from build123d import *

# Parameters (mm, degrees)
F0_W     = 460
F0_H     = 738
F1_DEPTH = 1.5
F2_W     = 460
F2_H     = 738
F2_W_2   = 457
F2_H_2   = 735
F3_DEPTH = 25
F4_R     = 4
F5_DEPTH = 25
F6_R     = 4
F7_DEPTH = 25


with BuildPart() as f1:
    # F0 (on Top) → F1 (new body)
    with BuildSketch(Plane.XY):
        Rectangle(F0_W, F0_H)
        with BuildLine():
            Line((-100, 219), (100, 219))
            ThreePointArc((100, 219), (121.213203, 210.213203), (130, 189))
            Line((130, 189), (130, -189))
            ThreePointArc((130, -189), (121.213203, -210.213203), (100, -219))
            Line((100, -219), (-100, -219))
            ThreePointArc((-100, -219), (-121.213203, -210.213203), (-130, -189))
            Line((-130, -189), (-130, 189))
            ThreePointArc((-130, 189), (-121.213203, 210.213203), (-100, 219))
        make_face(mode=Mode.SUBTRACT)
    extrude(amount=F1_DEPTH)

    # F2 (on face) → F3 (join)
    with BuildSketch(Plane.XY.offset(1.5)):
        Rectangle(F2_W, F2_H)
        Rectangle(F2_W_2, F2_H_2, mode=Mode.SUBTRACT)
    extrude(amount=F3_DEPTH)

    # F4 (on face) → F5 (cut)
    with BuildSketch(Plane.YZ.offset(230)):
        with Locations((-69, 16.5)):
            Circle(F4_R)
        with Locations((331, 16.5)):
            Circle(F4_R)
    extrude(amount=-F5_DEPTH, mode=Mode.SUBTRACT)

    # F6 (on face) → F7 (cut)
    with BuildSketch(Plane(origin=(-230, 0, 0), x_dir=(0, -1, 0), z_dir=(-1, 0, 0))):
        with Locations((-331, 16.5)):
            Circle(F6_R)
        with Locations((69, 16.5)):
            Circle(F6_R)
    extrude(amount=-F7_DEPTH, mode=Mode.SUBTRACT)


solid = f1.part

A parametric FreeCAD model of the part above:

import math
import FreeCAD as App
import Part
import Sketcher
from FreeCAD import Vector

doc = App.newDocument("Part")
params = doc.addObject("Spreadsheet::Sheet", "Params")
for row, (alias, value) in enumerate([
    ("sketch1_radius", "30.000001 mm"),
    ("sketch1_width", "460 mm"),
    ("sketch1_width2", "200 mm"),
    ("sketch1_height", "738 mm"),
    ("sketch1_height2", "378 mm"),
    ("pad1_length", "1.5 mm"),
    ("sketch2_width", "460 mm"),
    ("sketch2_width2", "457 mm"),
    ("sketch2_height", "738 mm"),
    ("sketch2_height2", "735 mm"),
    ("pad2_length", "25 mm"),
    ("sketch3_diameter", "8 mm"),
    ("pocket1_length", "25 mm"),
    ("sketch4_diameter", "8 mm"),
    ("pocket2_length", "25 mm"),
], start=1):
    params.set(f"A{row}", alias)
    params.set(f"B{row}", "=" + value)
    params.setAlias(f"B{row}", alias)

body = doc.addObject("PartDesign::Body", "Body")

sketch1 = body.newObject("Sketcher::SketchObject", "Sketch")
sketch1.AttachmentSupport = (doc.getObject("XY_Plane"), [""])
sketch1.MapMode = "FlatFace"
sketch1.addGeometry([
    Part.LineSegment(Vector(-230, 369, 0), Vector(-230, -369, 0)),
    Part.LineSegment(Vector(-230, -369, 0), Vector(230, -369, 0)),
    Part.LineSegment(Vector(230, -369, 0), Vector(230, 369, 0)),
    Part.LineSegment(Vector(230, 369, 0), Vector(-230, 369, 0)),
    Part.ArcOfCircle(Part.Circle(Vector(-100, 189, 0), Vector(0, 0, 1), 30), math.radians(90), math.radians(180)),
    Part.LineSegment(Vector(-100, 219, 0), Vector(100, 219, 0)),
    Part.ArcOfCircle(Part.Circle(Vector(100, 189, 0), Vector(0, 0, 1), 30), math.radians(0), math.radians(90)),
    Part.LineSegment(Vector(130, 189, 0), Vector(130, -189, 0)),
    Part.ArcOfCircle(Part.Circle(Vector(100, -189, 0), Vector(0, 0, 1), 30), math.radians(-90), math.radians(0)),
    Part.LineSegment(Vector(100, -219, 0), Vector(-100, -219, 0)),
    Part.ArcOfCircle(Part.Circle(Vector(-100, -189, 0), Vector(0, 0, 1), 30), math.radians(-180), math.radians(-90)),
    Part.LineSegment(Vector(-130, -189, 0), Vector(-130, 189, 0)),
], False)
sketch1.addConstraint([
    Sketcher.Constraint("Coincident", 0, 2, 1, 1),
    Sketcher.Constraint("Coincident", 1, 2, 2, 1),
    Sketcher.Constraint("Coincident", 2, 2, 3, 1),
    Sketcher.Constraint("Coincident", 3, 2, 0, 1),
    Sketcher.Constraint("Tangent", 4, 1, 5, 1),
    Sketcher.Constraint("Tangent", 5, 2, 6, 2),
    Sketcher.Constraint("Tangent", 6, 1, 7, 1),
    Sketcher.Constraint("Tangent", 7, 2, 8, 2),
    Sketcher.Constraint("Tangent", 8, 1, 9, 1),
    Sketcher.Constraint("Tangent", 9, 2, 10, 2),
    Sketcher.Constraint("Tangent", 10, 1, 11, 1),
    Sketcher.Constraint("Tangent", 11, 2, 4, 2),
    Sketcher.Constraint("Vertical", 0),
    Sketcher.Constraint("Horizontal", 1),
    Sketcher.Constraint("Vertical", 2),
    Sketcher.Constraint("Horizontal", 3),
    Sketcher.Constraint("Horizontal", 5),
    Sketcher.Constraint("Vertical", 7),
    Sketcher.Constraint("Horizontal", 9),
    Sketcher.Constraint("Vertical", 11),
    Sketcher.Constraint("Equal", 4, 6),
    Sketcher.Constraint("Equal", 6, 8),
    Sketcher.Constraint("Equal", 8, 10),
    Sketcher.Constraint("Symmetric", 4, 3, 8, 3, -1, 1),
    Sketcher.Constraint("Symmetric", 0, 2, 2, 2, -1, 1),
    Sketcher.Constraint("Radius", 4, 30.000001),
    Sketcher.Constraint("DistanceX", 1, 1, 1, 2, 460.0),
    Sketcher.Constraint("DistanceX", 5, 1, 5, 2, 200.0),
    Sketcher.Constraint("DistanceY", 0, 2, 0, 1, 738.0),
    Sketcher.Constraint("DistanceY", 7, 2, 7, 1, 378.0),
])
sketch1.setExpression("Constraints[25]", "Params.sketch1_radius")
sketch1.setExpression("Constraints[26]", "Params.sketch1_width")
sketch1.setExpression("Constraints[27]", "Params.sketch1_width2")
sketch1.setExpression("Constraints[28]", "Params.sketch1_height")
sketch1.setExpression("Constraints[29]", "Params.sketch1_height2")
pad1 = body.newObject("PartDesign::Pad", "Pad")
pad1.Profile = sketch1
pad1.setExpression("Length", "Params.pad1_length")

sketch2 = body.newObject("Sketcher::SketchObject", "Sketch001")
sketch2.AttachmentSupport = (doc.getObject("XY_Plane"), [""])
sketch2.MapMode = "FlatFace"
sketch2.AttachmentOffset = App.Placement(Vector(0, 0, 1.5), App.Rotation())
sketch2.addGeometry([
    Part.LineSegment(Vector(-230, 369, 0), Vector(-230, -369, 0)),
    Part.LineSegment(Vector(-230, -369, 0), Vector(230, -369, 0)),
    Part.LineSegment(Vector(230, -369, 0), Vector(230, 369, 0)),
    Part.LineSegment(Vector(230, 369, 0), Vector(-230, 369, 0)),
    Part.LineSegment(Vector(228, -368, 0), Vector(-228, -368, 0)),
    Part.LineSegment(Vector(-228, -368, 0), Vector(-228, 368, 0)),
    Part.LineSegment(Vector(-228, 368, 0), Vector(228, 368, 0)),
    Part.LineSegment(Vector(228, 368, 0), Vector(228, -368, 0)),
], False)
sketch2.addConstraint([
    Sketcher.Constraint("Coincident", 0, 2, 1, 1),
    Sketcher.Constraint("Coincident", 1, 2, 2, 1),
    Sketcher.Constraint("Coincident", 2, 2, 3, 1),
    Sketcher.Constraint("Coincident", 3, 2, 0, 1),
    Sketcher.Constraint("Coincident", 4, 2, 5, 1),
    Sketcher.Constraint("Coincident", 5, 2, 6, 1),
    Sketcher.Constraint("Coincident", 6, 2, 7, 1),
    Sketcher.Constraint("Coincident", 7, 2, 4, 1),
    Sketcher.Constraint("Vertical", 0),
    Sketcher.Constraint("Horizontal", 1),
    Sketcher.Constraint("Vertical", 2),
    Sketcher.Constraint("Horizontal", 3),
    Sketcher.Constraint("Horizontal", 4),
    Sketcher.Constraint("Vertical", 5),
    Sketcher.Constraint("Horizontal", 6),
    Sketcher.Constraint("Vertical", 7),
    Sketcher.Constraint("Symmetric", 0, 2, 2, 2, -1, 1),
    Sketcher.Constraint("Symmetric", 4, 2, 6, 2, -1, 1),
    Sketcher.Constraint("DistanceX", 1, 1, 1, 2, 460.0),
    Sketcher.Constraint("DistanceX", 4, 2, 4, 1, 457.0),
    Sketcher.Constraint("DistanceY", 0, 2, 0, 1, 738.0),
    Sketcher.Constraint("DistanceY", 5, 1, 5, 2, 735.0),
])
sketch2.setExpression("Constraints[18]", "Params.sketch2_width")
sketch2.setExpression("Constraints[19]", "Params.sketch2_width2")
sketch2.setExpression("Constraints[20]", "Params.sketch2_height")
sketch2.setExpression("Constraints[21]", "Params.sketch2_height2")
pad2 = body.newObject("PartDesign::Pad", "Pad001")
pad2.Profile = sketch2
pad2.setExpression("Length", "Params.pad2_length")

sketch3 = body.newObject("Sketcher::SketchObject", "Sketch002")
sketch3.AttachmentSupport = (doc.getObject("YZ_Plane"), [""])
sketch3.MapMode = "FlatFace"
sketch3.AttachmentOffset = App.Placement(Vector(0, 0, 230), App.Rotation())
sketch3.addGeometry([
    Part.Circle(Vector(-69, 16.5, 0), Vector(0, 0, 1), 4),
    Part.Circle(Vector(331, 16.5, 0), Vector(0, 0, 1), 4),
], False)
sketch3.addConstraint([
    Sketcher.Constraint("Equal", 0, 1),
    Sketcher.Constraint("Horizontal", 0, 3, 1, 3),
    Sketcher.Constraint("Diameter", 0, 8.0),
    Sketcher.Constraint("DistanceX", 0, 3, -1, 1, 69.0),
    Sketcher.Constraint("DistanceX", -1, 1, 1, 3, 331.0),
    Sketcher.Constraint("DistanceY", -1, 1, 0, 3, 16.5),
])
sketch3.setExpression("Constraints[2]", "Params.sketch3_diameter")
pocket1 = body.newObject("PartDesign::Pocket", "Pocket")
pocket1.Profile = sketch3
pocket1.setExpression("Length", "Params.pocket1_length")

sketch4 = body.newObject("Sketcher::SketchObject", "Sketch003")
sketch4.AttachmentSupport = (doc.getObject("YZ_Plane"), [""])
sketch4.MapMode = "FlatFace"
sketch4.AttachmentOffset = App.Placement(Vector(0, 0, -230), App.Rotation())
sketch4.addGeometry([
    Part.Circle(Vector(331, 16.5, 0), Vector(0, 0, 1), 4),
    Part.Circle(Vector(-69, 16.5, 0), Vector(0, 0, 1), 4),
], False)
sketch4.addConstraint([
    Sketcher.Constraint("Equal", 0, 1),
    Sketcher.Constraint("Horizontal", 0, 3, 1, 3),
    Sketcher.Constraint("Diameter", 0, 8.0),
    Sketcher.Constraint("DistanceX", -1, 1, 0, 3, 331.0),
    Sketcher.Constraint("DistanceX", 1, 3, -1, 1, 69.0),
    Sketcher.Constraint("DistanceY", -1, 1, 0, 3, 16.5),
])
sketch4.setExpression("Constraints[2]", "Params.sketch4_diameter")
pocket2 = body.newObject("PartDesign::Pocket", "Pocket001")
pocket2.Profile = sketch4
pocket2.setExpression("Length", "Params.pocket2_length")
pocket2.Reversed = True

doc.recompute()
